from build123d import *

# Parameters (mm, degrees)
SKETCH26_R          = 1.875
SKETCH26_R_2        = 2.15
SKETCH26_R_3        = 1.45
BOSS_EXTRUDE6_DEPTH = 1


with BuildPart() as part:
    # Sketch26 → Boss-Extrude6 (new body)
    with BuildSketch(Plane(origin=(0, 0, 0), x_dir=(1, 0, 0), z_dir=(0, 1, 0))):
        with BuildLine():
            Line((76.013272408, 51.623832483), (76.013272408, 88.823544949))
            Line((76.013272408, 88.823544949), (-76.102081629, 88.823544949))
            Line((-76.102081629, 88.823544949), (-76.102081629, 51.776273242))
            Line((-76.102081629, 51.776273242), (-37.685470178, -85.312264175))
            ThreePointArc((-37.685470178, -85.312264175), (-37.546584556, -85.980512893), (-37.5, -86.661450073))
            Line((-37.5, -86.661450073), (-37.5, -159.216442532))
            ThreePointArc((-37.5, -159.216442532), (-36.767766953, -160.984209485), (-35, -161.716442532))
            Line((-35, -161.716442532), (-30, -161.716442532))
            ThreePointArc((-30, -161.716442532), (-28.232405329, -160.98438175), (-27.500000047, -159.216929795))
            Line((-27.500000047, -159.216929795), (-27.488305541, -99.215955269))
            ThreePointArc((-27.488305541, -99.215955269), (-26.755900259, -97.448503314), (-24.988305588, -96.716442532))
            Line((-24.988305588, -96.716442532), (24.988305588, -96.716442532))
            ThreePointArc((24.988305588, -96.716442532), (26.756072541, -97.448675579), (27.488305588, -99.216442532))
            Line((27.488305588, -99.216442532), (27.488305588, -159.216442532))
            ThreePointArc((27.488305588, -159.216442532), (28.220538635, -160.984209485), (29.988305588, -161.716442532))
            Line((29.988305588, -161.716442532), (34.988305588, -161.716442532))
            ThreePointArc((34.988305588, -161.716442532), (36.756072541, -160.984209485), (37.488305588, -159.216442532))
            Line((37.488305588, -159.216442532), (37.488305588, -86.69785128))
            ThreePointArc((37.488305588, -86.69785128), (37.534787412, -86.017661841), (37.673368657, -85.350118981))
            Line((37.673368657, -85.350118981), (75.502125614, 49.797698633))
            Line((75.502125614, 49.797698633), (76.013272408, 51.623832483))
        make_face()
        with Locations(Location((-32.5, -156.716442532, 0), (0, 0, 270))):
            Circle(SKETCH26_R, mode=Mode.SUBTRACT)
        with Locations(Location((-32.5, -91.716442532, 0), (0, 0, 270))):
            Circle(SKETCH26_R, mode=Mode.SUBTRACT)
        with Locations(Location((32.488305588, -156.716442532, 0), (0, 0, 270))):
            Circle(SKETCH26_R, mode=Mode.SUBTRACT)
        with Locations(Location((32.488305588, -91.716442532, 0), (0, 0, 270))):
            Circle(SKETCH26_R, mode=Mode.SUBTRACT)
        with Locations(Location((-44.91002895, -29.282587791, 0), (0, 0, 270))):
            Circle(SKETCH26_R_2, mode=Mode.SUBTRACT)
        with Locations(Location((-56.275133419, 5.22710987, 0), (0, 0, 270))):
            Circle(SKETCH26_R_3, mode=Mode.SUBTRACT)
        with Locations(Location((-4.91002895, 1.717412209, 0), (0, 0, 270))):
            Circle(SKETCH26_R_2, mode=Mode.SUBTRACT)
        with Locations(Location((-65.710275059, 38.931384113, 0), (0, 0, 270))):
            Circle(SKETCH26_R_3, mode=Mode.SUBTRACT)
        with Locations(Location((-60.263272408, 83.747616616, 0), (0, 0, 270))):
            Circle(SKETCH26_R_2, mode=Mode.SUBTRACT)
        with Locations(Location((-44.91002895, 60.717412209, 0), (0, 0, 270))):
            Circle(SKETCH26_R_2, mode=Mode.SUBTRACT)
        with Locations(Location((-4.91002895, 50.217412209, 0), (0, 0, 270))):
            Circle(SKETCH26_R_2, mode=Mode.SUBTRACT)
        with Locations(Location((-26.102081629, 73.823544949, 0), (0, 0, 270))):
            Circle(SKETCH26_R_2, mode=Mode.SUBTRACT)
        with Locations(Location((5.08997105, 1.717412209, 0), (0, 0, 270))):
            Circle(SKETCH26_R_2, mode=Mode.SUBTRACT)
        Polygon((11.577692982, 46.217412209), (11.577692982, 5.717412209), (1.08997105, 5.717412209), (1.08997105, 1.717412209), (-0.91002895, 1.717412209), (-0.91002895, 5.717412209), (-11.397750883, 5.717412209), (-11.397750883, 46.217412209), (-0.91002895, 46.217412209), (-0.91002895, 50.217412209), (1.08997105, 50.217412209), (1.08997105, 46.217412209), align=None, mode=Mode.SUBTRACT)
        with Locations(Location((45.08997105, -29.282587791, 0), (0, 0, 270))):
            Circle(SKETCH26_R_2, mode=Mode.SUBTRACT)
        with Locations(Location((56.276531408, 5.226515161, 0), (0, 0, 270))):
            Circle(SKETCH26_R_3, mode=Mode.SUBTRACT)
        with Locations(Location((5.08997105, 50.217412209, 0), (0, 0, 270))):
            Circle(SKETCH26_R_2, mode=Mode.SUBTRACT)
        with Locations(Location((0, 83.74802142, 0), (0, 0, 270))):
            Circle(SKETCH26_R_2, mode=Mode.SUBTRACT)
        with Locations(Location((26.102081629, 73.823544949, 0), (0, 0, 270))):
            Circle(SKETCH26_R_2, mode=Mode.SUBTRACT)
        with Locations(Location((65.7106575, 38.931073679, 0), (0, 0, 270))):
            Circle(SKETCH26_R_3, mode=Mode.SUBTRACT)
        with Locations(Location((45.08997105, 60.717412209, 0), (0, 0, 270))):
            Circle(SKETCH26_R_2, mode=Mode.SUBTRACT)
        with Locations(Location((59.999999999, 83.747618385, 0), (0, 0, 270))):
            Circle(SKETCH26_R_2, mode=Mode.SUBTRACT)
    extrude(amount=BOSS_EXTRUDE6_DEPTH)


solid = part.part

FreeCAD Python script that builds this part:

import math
import FreeCAD as App
import Part
import Sketcher

V = App.Vector
Q = App.Units.Quantity


def add_polygon(sketch, points):
    """Adds a closed chain of lines whose ends are joined by coincident constraints."""
    first, n = sketch.GeometryCount, len(points)
    for a, b in zip(points, points[1:] + points[:1]):
        sketch.addGeometry(Part.LineSegment(App.Vector(*a, 0), App.Vector(*b, 0)), False)
    for i in range(n):
        sketch.addConstraint(Sketcher.Constraint("Coincident", first + i, 2, first + (i + 1) % n, 1))

doc = App.newDocument("Part")
body = doc.addObject("PartDesign::Body", "Body")

sketch1 = body.newObject("Sketcher::SketchObject", "Sketch")
sketch1.AttachmentSupport = (doc.getObject("XZ_Plane"), [""])
sketch1.MapMode = "FlatFace"
sketch1.addGeometry(Part.LineSegment(V(76, -51.6, 0), V(76, -88.8, 0)), False)
sketch1.addGeometry(Part.LineSegment(V(76, -88.8, 0), V(-76.1, -88.8, 0)), False)
sketch1.addGeometry(Part.LineSegment(V(-76.1, -88.8, 0), V(-76.1, -51.8, 0)), False)
sketch1.addGeometry(Part.LineSegment(V(-76.1, -51.8, 0), V(-37.7, 85.3, 0)), False)
sketch1.addGeometry(Part.ArcOfCircle(Part.Circle(V(-42.5, 86.7, 0), V(0, 0, 1), 5), math.radians(-15.65), math.radians(0)), False)
sketch1.addGeometry(Part.LineSegment(V(-37.5, 86.7, 0), V(-37.5, 159.2, 0)), False)
sketch1.addGeometry(Part.ArcOfCircle(Part.Circle(V(-35, 159.2, 0), V(0, 0, 1), 2.5), math.radians(90), math.radians(180)), False)
sketch1.addGeometry(Part.LineSegment(V(-35, 161.7, 0), V(-30, 161.7, 0)), False)
sketch1.addGeometry(Part.ArcOfCircle(Part.Circle(V(-30, 159.2, 0), V(0, 0, 1), 2.5), math.radians(0), math.radians(90)), False)
sketch1.addGeometry(Part.LineSegment(V(-27.5, 159.2, 0), V(-27.5, 99.2, 0)), False)
sketch1.addGeometry(Part.ArcOfCircle(Part.Circle(V(-25, 99.2, 0), V(0, 0, 1), 2.5), math.radians(-180), math.radians(-90)), False)
sketch1.addGeometry(Part.LineSegment(V(-25, 96.7, 0), V(25, 96.7, 0)), False)
sketch1.addGeometry(Part.ArcOfCircle(Part.Circle(V(25, 99.2, 0), V(0, 0, 1), 2.5), math.radians(-90), math.radians(0)), False)
sketch1.addGeometry(Part.LineSegment(V(27.5, 99.2, 0), V(27.5, 159.2, 0)), False)
sketch1.addGeometry(Part.ArcOfCircle(Part.Circle(V(30, 159.2, 0), V(0, 0, 1), 2.5), math.radians(90), math.radians(180)), False)
sketch1.addGeometry(Part.LineSegment(V(30, 161.7, 0), V(35, 161.7, 0)), False)
sketch1.addGeometry(Part.ArcOfCircle(Part.Circle(V(35, 159.2, 0), V(0, 0, 1), 2.5), math.radians(0), math.radians(90)), False)
sketch1.addGeometry(Part.LineSegment(V(37.5, 159.2, 0), V(37.5, 86.7, 0)), False)
sketch1.addGeometry(Part.ArcOfCircle(Part.Circle(V(42.5, 86.7, 0), V(0, 0, 1), 5), math.radians(-180), math.radians(-164.36)), False)
sketch1.addGeometry(Part.LineSegment(V(37.7, 85.4, 0), V(75.5, -49.8, 0)), False)
sketch1.addGeometry(Part.LineSegment(V(75.5, -49.8, 0), V(76, -51.6, 0)), False)
sketch1.addGeometry(Part.Circle(V(-32.5, 156.7, 0), V(0, 0, 1), 1.9), False)
sketch1.addGeometry(Part.Circle(V(-32.5, 91.7, 0), V(0, 0, 1), 1.9), False)
sketch1.addGeometry(Part.Circle(V(32.5, 156.7, 0), V(0, 0, 1), 1.9), False)
sketch1.addGeometry(Part.Circle(V(32.5, 91.7, 0), V(0, 0, 1), 1.9), False)
sketch1.addGeometry(Part.Circle(V(-44.9, 29.3, 0), V(0, 0, 1), 2.1), False)
sketch1.addGeometry(Part.Circle(V(-56.3, -5.2, 0), V(0, 0, 1), 1.4), False)
sketch1.addGeometry(Part.Circle(V(-4.9, -1.7, 0), V(0, 0, 1), 2.1), False)
sketch1.addGeometry(Part.Circle(V(-65.7, -38.9, 0), V(0, 0, 1), 1.4), False)
sketch1.addGeometry(Part.Circle(V(-60.3, -83.7, 0), V(0, 0, 1), 2.1), False)
sketch1.addGeometry(Part.Circle(V(-44.9, -60.7, 0), V(0, 0, 1), 2.1), False)
sketch1.addGeometry(Part.Circle(V(-4.9, -50.2, 0), V(0, 0, 1), 2.1), False)
sketch1.addGeometry(Part.Circle(V(-26.1, -73.8, 0), V(0, 0, 1), 2.1), False)
sketch1.addGeometry(Part.Circle(V(0, -83.7, 0), V(0, 0, 1), 2.1), False)
sketch1.addGeometry(Part.Circle(V(5.1, -1.7, 0), V(0, 0, 1), 2.1), False)
sketch1.addGeometry(Part.Circle(V(45.1, 29.3, 0), V(0, 0, 1), 2.1), False)
sketch1.addGeometry(Part.Circle(V(56.3, -5.2, 0), V(0, 0, 1), 1.4), False)
add_polygon(sketch1, [(1.1, -46.2), (11.6, -46.2), (11.6, -5.7), (1.1, -5.7), (1.1, -1.7), (-0.9, -1.7), (-0.9, -5.7), (-11.4, -5.7), (-11.4, -46.2), (-0.9, -46.2), (-0.9, -50.2), (1.1, -50.2)])
sketch1.addGeometry(Part.Circle(V(5.1, -50.2, 0), V(0, 0, 1), 2.1), False)
sketch1.addGeometry(Part.Circle(V(26.1, -73.8, 0), V(0, 0, 1), 2.1), False)
sketch1.addGeometry(Part.Circle(V(65.7, -38.9, 0), V(0, 0, 1), 1.4), False)
sketch1.addGeometry(Part.Circle(V(45.1, -60.7, 0), V(0, 0, 1), 2.1), False)
sketch1.addGeometry(Part.Circle(V(60, -83.7, 0), V(0, 0, 1), 2.1), False)
sketch1.addConstraint([
    Sketcher.Constraint("Coincident", 0, 2, 1, 1),
    Sketcher.Constraint("Coincident", 1, 2, 2, 1),
    Sketcher.Constraint("Coincident", 2, 2, 3, 1),
    Sketcher.Constraint("Tangent", 3, 2, 4, 1),
    Sketcher.Constraint("Tangent", 4, 2, 5, 1),
    Sketcher.Constraint("Tangent", 5, 2, 6, 2),
    Sketcher.Constraint("Tangent", 6, 1, 7, 1),
    Sketcher.Constraint("Tangent", 7, 2, 8, 2),
    Sketcher.Constraint("Tangent", 8, 1, 9, 1),
    Sketcher.Constraint("Tangent", 9, 2, 10, 1),
    Sketcher.Constraint("Tangent", 10, 2, 11, 1),
    Sketcher.Constraint("Tangent", 11, 2, 12, 1),
    Sketcher.Constraint("Tangent", 12, 2, 13, 1),
    Sketcher.Constraint("Tangent", 13, 2, 14, 2),
    Sketcher.Constraint("Tangent", 14, 1, 15, 1),
    Sketcher.Constraint("Tangent", 15, 2, 16, 2),
    Sketcher.Constraint("Tangent", 16, 1, 17, 1),
    Sketcher.Constraint("Tangent", 17, 2, 18, 1),
    Sketcher.Constraint("Tangent", 18, 2, 19, 1),
    Sketcher.Constraint("Coincident", 19, 2, 20, 1),
    Sketcher.Constraint("Coincident", 20, 2, 0, 1),
    Sketcher.Constraint("Vertical", 0),
    Sketcher.Constraint("Horizontal", 1),
    Sketcher.Constraint("Vertical", 2),
    Sketcher.Constraint("Vertical", 5),
    Sketcher.Constraint("Horizontal", 7),
    Sketcher.Constraint("Horizontal", 11),
    Sketcher.Constraint("Vertical", 13),
    Sketcher.Constraint("Horizontal", 15),
    Sketcher.Constraint("Vertical", 17),
    Sketcher.Constraint("Horizontal", 37),
    Sketcher.Constraint("Vertical", 38),
    Sketcher.Constraint("Horizontal", 39),
    Sketcher.Constraint("Vertical", 40),
    Sketcher.Constraint("Horizontal", 41),
    Sketcher.Constraint("Vertical", 42),
    Sketcher.Constraint("Horizontal", 43),
    Sketcher.Constraint("Vertical", 44),
    Sketcher.Constraint("Horizontal", 45),
    Sketcher.Constraint("Vertical", 46),
    Sketcher.Constraint("Horizontal", 47),
    Sketcher.Constraint("Vertical", 48),
    Sketcher.Constraint("Equal", 6, 8),
    Sketcher.Constraint("Equal", 8, 10),
    Sketcher.Constraint("Equal", 10, 12),
    Sketcher.Constraint("Equal", 12, 14),
    Sketcher.Constraint("Equal", 14, 16),
    Sketcher.Constraint("Equal", 4, 18),
    Sketcher.Constraint("Equal", 21, 22),
    Sketcher.Constraint("Equal", 22, 23),
    Sketcher.Constraint("Equal", 23, 24),
    Sketcher.Constraint("Equal", 25, 27),
    Sketcher.Constraint("Equal", 26, 28),
    Sketcher.Constraint("Equal", 27, 29),
    Sketcher.Constraint("Equal", 29, 30),
    Sketcher.Constraint("Equal", 30, 31),
    Sketcher.Constraint("Equal", 31, 32),
    Sketcher.Constraint("Equal", 32, 33),
    Sketcher.Constraint("Equal", 33, 34),
    Sketcher.Constraint("Equal", 34, 35),
    Sketcher.Constraint("Equal", 28, 36),
    Sketcher.Constraint("Equal", 35, 49),
    Sketcher.Constraint("Equal", 49, 50),
    Sketcher.Constraint("Equal", 36, 51),
    Sketcher.Constraint("Equal", 50, 52),
    Sketcher.Constraint("Equal", 52, 53),
    Sketcher.Constraint("Symmetric", 32, 3, 50, 3, -2),
    Sketcher.Constraint("PointOnObject", 33, 3, -2),
    Sketcher.Constraint("Parallel", 19, 20),
    Sketcher.Constraint("Horizontal", 8, 3, 14, 3),
    Sketcher.Constraint("Horizontal", 21, 3, 23, 3),
    Sketcher.Constraint("Horizontal", 22, 3, 24, 3),
    Sketcher.Constraint("Horizontal", 27, 3, 34, 3),
    Sketcher.Constraint("Horizontal", 25, 3, 35, 3),
    Sketcher.Constraint("Horizontal", 31, 3, 49, 3),
    Sketcher.Constraint("Horizontal", 30, 3, 52, 3),
    Sketcher.Constraint("Horizontal", 29, 3, 53, 3),
    Sketcher.Constraint("Horizontal", 34, 3, 40, 2),
    Sketcher.Constraint("Horizontal", 39, 2, 42, 2),
    Sketcher.Constraint("Horizontal", 37, 2, 44, 2),
    Sketcher.Constraint("Horizontal", 49, 3, 46, 2),
    Sketcher.Constraint("Vertical", 21, 3, 22, 3),
    Sketcher.Constraint("Vertical", 23, 3, 24, 3),
    Sketcher.Constraint("Vertical", 25, 3, 30, 3),
    Sketcher.Constraint("Vertical", 27, 3, 31, 3),
    Sketcher.Constraint("Vertical", 34, 3, 49, 3),
    Sketcher.Constraint("Vertical", 35, 3, 52, 3),
    Sketcher.Constraint("Vertical", 42, 2, 45, 2),
    Sketcher.Constraint("Vertical", 40, 2, 47, 2),
    Sketcher.Constraint("Equal", 7, 15),
    Sketcher.Constraint("Equal", 39, 43),
    Sketcher.Constraint("Equal", 42, 46),
    Sketcher.Constraint("Radius", 4, Q("5 mm")),
    Sketcher.Constraint("Diameter", 25, Q("4.3 mm")),
    Sketcher.Constraint("Diameter", 26, Q("2.9 mm")),
    Sketcher.Constraint("Radius", 6, Q("2.5 mm")),
    Sketcher.Constraint("Diameter", 21, Q("3.75 mm")),
    Sketcher.Constraint("DistanceX", 7, 1, 7, 2, Q("5 mm")),
    Sketcher.Constraint("DistanceX", 41, 2, 41, 1, Q("2 mm")),
    Sketcher.Constraint("DistanceY", 13, 1, 13, 2, Q("60 mm")),
    Sketcher.Constraint("DistanceY", 40, 1, 40, 2, Q("4 mm")),
    Sketcher.Constraint("DistanceY", 38, 1, 38, 2, Q("40.5 mm")),
    Sketcher.Constraint("DistanceX", 6, 3, -1, 1, Q("35 mm")),
    Sketcher.Constraint("DistanceX", -1, 1, 53, 3, Q("60 mm")),
    Sketcher.Constraint("DistanceX", 21, 3, -1, 1, Q("32.5 mm")),
    Sketcher.Constraint("Distance", 3, Q("142.3696 mm")),
    Sketcher.Constraint("DistanceX", 11, 1, 11, 2, Q("49.976611 mm")),
    Sketcher.Constraint("DistanceX", 37, 1, 37, 2, Q("10.487722 mm")),
    Sketcher.Constraint("DistanceY", 2, 1, 2, 2, Q("37.047272 mm")),
    Sketcher.Constraint("DistanceY", 17, 2, 17, 1, Q("72.518591 mm")),
    Sketcher.Constraint("DistanceY", 19, 2, -1, 1, Q("49.797699 mm")),
    Sketcher.Constraint("Distance", 19, Q("140.342251 mm")),
    Sketcher.Constraint("Distance", 20, Q("1.896322 mm")),
    Sketcher.Constraint("DistanceX", 1, 2, 1, 1, Q("152.115354 mm")),
    Sketcher.Constraint("DistanceY", 0, 2, 0, 1, Q("37.199712 mm")),
    Sketcher.Constraint("DistanceY", 5, 1, 5, 2, Q("72.554992 mm")),
    Sketcher.Constraint("DistanceY", -1, 1, 4, 3, Q("86.66145 mm")),
    Sketcher.Constraint("DistanceX", 25, 3, -1, 1, Q("44.910029 mm")),
    Sketcher.Constraint("DistanceY", 26, 3, -1, 1, Q("5.22711 mm")),
    Sketcher.Constraint("DistanceX", 27, 3, -1, 1, Q("4.910029 mm")),
    Sketcher.Constraint("DistanceX", 32, 3, -1, 1, Q("26.102082 mm")),
    Sketcher.Constraint("DistanceY", 33, 3, -1, 1, Q("83.748021 mm")),
    Sketcher.Constraint("DistanceX", -1, 1, 34, 3, Q("5.089971 mm")),
    Sketcher.Constraint("DistanceX", -1, 1, 35, 3, Q("45.089971 mm")),
    Sketcher.Constraint("DistanceX", -1, 1, 36, 3, Q("56.276531 mm")),
    Sketcher.Constraint("DistanceY", 53, 3, -1, 1, Q("83.747618 mm")),
    Sketcher.Constraint("DistanceX", -1, 1, 39, 2, Q("1.089971 mm")),
    Sketcher.Constraint("DistanceY", -1, 1, 21, 3, Q("156.716443 mm")),
    Sketcher.Constraint("DistanceY", -1, 1, 22, 3, Q("91.716443 mm")),
    Sketcher.Constraint("DistanceX", -1, 1, 23, 3, Q("32.488306 mm")),
    Sketcher.Constraint("DistanceY", -1, 1, 25, 3, Q("29.282588 mm")),
    Sketcher.Constraint("DistanceX", 26, 3, -1, 1, Q("56.275133 mm")),
    Sketcher.Constraint("DistanceY", 27, 3, -1, 1, Q("1.717412 mm")),
    Sketcher.Constraint("DistanceX", 28, 3, -1, 1, Q("65.710275 mm")),
    Sketcher.Constraint("DistanceY", 28, 3, -1, 1, Q("38.931384 mm")),
    Sketcher.Constraint("DistanceX", 29, 3, -1, 1, Q("60.263272 mm")),
    Sketcher.Constraint("DistanceY", 30, 3, -1, 1, Q("60.717412 mm")),
    Sketcher.Constraint("DistanceY", 32, 3, -1, 1, Q("73.823545 mm")),
    Sketcher.Constraint("DistanceY", 36, 3, -1, 1, Q("5.226515 mm")),
    Sketcher.Constraint("DistanceX", -1, 1, 51, 3, Q("65.710657 mm")),
    Sketcher.Constraint("DistanceY", 51, 3, -1, 1, Q("38.931074 mm")),
])
pad1 = body.newObject("PartDesign::Pad", "Pad")
pad1.Profile = sketch1
pad1.Length = 1
pad1.Reversed = True

doc.recompute()
